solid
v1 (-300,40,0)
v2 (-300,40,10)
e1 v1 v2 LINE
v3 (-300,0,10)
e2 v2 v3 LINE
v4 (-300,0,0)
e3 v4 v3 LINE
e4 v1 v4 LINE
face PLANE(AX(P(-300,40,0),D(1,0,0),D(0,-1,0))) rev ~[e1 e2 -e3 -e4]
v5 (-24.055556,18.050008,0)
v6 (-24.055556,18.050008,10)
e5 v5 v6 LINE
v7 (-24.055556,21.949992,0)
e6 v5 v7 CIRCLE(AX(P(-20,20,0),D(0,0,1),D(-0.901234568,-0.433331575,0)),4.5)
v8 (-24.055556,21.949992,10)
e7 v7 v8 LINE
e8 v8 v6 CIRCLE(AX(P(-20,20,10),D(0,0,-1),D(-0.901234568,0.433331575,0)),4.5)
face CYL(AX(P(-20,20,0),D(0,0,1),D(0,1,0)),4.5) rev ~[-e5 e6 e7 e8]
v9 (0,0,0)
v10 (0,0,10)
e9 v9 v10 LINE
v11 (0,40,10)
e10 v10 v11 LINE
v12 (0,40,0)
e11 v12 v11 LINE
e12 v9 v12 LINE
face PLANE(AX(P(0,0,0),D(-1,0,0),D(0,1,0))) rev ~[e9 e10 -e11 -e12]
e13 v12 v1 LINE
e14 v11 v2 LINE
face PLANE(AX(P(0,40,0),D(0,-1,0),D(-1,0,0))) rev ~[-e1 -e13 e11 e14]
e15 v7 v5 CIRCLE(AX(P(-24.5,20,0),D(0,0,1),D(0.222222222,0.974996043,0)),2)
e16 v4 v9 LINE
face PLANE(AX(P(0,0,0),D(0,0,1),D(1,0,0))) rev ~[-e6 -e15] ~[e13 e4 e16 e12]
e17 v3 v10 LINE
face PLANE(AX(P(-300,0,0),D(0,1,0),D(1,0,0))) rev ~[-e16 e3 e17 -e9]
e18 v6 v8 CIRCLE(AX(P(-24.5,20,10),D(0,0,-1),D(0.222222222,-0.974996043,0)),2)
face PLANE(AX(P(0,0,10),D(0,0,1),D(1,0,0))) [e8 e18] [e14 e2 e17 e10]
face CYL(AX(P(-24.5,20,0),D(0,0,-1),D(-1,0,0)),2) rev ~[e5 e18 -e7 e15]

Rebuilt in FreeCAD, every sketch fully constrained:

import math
import FreeCAD as App
import Part
import Sketcher
from FreeCAD import Vector


def add_polygon(sketch, points):
    """Adds a closed chain of lines whose ends are joined by coincident constraints."""
    first, n = sketch.GeometryCount, len(points)
    for a, b in zip(points, points[1:] + points[:1]):
        sketch.addGeometry(Part.LineSegment(App.Vector(*a, 0), App.Vector(*b, 0)), False)
    for i in range(n):
        sketch.addConstraint(Sketcher.Constraint("Coincident", first + i, 2, first + (i + 1) % n, 1))

doc = App.newDocument("Part")
body = doc.addObject("PartDesign::Body", "Body")

# Sketch on XY plane
sketch1 = body.newObject("Sketcher::SketchObject", "Sketch")
sketch1.AttachmentSupport = (doc.getObject("XY_Plane"), [""])
sketch1.MapMode = "FlatFace"
add_polygon(sketch1, [(0, 0), (0, 40), (-300, 40), (-300, 0)])  # lines 0-3
sketch1.addConstraint(Sketcher.Constraint("Vertical", 0))
sketch1.addConstraint(Sketcher.Constraint("Horizontal", 1))
sketch1.addConstraint(Sketcher.Constraint("Vertical", 2))
sketch1.addConstraint(Sketcher.Constraint("Horizontal", 3))
sketch1.addConstraint(Sketcher.Constraint("Coincident", 3, 2, -1, 1))
sketch1.addConstraint(Sketcher.Constraint("DistanceX", 1, 2, 1, 1, 300.0))
sketch1.addConstraint(Sketcher.Constraint("DistanceY", 0, 1, 0, 2, 40.0))
pad1 = body.newObject("PartDesign::Pad", "Pad")
pad1.Profile = sketch1
pad1.Length = 10

# Sketch on XY plane
sketch2 = body.newObject("Sketcher::SketchObject", "Sketch001")
sketch2.AttachmentSupport = (doc.getObject("XY_Plane"), [""])
sketch2.MapMode = "FlatFace"
sketch2.addGeometry(Part.Circle(Vector(-20, 20, 0), Vector(0, 0, 1), 4.5), False)
sketch2.addConstraint(Sketcher.Constraint("Diameter", 0, 9.0))
sketch2.addConstraint(Sketcher.Constraint("DistanceX", 0, 3, -1, 1, 20.0))
sketch2.addConstraint(Sketcher.Constraint("DistanceY", -1, 1, 0, 3, 20.0))
doc.recompute()
hole = body.newObject("PartDesign::Hole", "Hole")
hole.Profile = sketch2
hole.ThreadType = "None"
hole.Diameter = 9
hole.DepthType = "ThroughAll"
hole.Reversed = True

# Sketch on XY plane
sketch3 = body.newObject("Sketcher::SketchObject", "Sketch002")
sketch3.AttachmentSupport = (doc.getObject("XY_Plane"), [""])
sketch3.MapMode = "FlatFace"
sketch3.addGeometry(Part.ArcOfCircle(Part.Circle(Vector(-20, 20, 0), Vector(0, 0, 1), 4.5), math.radians(154.320823), math.radians(205.679177)), False)
sketch3.addGeometry(Part.ArcOfCircle(Part.Circle(Vector(-24.5, 20, 0), Vector(0, 0, 1), 2), math.radians(77.160412), math.radians(282.839588)), False)
sketch3.addConstraint(Sketcher.Constraint("Coincident", 0, 1, 1, 1))
sketch3.addConstraint(Sketcher.Constraint("Coincident", 1, 2, 0, 2))
sketch3.addConstraint(Sketcher.Constraint("Horizontal", 0, 3, 1, 3))
sketch3.addConstraint(Sketcher.Constraint("Radius", 1, 2.0))
sketch3.addConstraint(Sketcher.Constraint("Radius", 0, 4.5))
sketch3.addConstraint(Sketcher.Constraint("DistanceX", 0, 3, -1, 1, 20.0))
sketch3.addConstraint(Sketcher.Constraint("DistanceY", -1, 1, 0, 3, 20.0))
sketch3.addConstraint(Sketcher.Constraint("DistanceX", 1, 3, -1, 1, 24.5))
pocket1 = body.newObject("PartDesign::Pocket", "Pocket")
pocket1.Profile = sketch3
pocket1.Length = 10
pocket1.Reversed = True

doc.recompute()
